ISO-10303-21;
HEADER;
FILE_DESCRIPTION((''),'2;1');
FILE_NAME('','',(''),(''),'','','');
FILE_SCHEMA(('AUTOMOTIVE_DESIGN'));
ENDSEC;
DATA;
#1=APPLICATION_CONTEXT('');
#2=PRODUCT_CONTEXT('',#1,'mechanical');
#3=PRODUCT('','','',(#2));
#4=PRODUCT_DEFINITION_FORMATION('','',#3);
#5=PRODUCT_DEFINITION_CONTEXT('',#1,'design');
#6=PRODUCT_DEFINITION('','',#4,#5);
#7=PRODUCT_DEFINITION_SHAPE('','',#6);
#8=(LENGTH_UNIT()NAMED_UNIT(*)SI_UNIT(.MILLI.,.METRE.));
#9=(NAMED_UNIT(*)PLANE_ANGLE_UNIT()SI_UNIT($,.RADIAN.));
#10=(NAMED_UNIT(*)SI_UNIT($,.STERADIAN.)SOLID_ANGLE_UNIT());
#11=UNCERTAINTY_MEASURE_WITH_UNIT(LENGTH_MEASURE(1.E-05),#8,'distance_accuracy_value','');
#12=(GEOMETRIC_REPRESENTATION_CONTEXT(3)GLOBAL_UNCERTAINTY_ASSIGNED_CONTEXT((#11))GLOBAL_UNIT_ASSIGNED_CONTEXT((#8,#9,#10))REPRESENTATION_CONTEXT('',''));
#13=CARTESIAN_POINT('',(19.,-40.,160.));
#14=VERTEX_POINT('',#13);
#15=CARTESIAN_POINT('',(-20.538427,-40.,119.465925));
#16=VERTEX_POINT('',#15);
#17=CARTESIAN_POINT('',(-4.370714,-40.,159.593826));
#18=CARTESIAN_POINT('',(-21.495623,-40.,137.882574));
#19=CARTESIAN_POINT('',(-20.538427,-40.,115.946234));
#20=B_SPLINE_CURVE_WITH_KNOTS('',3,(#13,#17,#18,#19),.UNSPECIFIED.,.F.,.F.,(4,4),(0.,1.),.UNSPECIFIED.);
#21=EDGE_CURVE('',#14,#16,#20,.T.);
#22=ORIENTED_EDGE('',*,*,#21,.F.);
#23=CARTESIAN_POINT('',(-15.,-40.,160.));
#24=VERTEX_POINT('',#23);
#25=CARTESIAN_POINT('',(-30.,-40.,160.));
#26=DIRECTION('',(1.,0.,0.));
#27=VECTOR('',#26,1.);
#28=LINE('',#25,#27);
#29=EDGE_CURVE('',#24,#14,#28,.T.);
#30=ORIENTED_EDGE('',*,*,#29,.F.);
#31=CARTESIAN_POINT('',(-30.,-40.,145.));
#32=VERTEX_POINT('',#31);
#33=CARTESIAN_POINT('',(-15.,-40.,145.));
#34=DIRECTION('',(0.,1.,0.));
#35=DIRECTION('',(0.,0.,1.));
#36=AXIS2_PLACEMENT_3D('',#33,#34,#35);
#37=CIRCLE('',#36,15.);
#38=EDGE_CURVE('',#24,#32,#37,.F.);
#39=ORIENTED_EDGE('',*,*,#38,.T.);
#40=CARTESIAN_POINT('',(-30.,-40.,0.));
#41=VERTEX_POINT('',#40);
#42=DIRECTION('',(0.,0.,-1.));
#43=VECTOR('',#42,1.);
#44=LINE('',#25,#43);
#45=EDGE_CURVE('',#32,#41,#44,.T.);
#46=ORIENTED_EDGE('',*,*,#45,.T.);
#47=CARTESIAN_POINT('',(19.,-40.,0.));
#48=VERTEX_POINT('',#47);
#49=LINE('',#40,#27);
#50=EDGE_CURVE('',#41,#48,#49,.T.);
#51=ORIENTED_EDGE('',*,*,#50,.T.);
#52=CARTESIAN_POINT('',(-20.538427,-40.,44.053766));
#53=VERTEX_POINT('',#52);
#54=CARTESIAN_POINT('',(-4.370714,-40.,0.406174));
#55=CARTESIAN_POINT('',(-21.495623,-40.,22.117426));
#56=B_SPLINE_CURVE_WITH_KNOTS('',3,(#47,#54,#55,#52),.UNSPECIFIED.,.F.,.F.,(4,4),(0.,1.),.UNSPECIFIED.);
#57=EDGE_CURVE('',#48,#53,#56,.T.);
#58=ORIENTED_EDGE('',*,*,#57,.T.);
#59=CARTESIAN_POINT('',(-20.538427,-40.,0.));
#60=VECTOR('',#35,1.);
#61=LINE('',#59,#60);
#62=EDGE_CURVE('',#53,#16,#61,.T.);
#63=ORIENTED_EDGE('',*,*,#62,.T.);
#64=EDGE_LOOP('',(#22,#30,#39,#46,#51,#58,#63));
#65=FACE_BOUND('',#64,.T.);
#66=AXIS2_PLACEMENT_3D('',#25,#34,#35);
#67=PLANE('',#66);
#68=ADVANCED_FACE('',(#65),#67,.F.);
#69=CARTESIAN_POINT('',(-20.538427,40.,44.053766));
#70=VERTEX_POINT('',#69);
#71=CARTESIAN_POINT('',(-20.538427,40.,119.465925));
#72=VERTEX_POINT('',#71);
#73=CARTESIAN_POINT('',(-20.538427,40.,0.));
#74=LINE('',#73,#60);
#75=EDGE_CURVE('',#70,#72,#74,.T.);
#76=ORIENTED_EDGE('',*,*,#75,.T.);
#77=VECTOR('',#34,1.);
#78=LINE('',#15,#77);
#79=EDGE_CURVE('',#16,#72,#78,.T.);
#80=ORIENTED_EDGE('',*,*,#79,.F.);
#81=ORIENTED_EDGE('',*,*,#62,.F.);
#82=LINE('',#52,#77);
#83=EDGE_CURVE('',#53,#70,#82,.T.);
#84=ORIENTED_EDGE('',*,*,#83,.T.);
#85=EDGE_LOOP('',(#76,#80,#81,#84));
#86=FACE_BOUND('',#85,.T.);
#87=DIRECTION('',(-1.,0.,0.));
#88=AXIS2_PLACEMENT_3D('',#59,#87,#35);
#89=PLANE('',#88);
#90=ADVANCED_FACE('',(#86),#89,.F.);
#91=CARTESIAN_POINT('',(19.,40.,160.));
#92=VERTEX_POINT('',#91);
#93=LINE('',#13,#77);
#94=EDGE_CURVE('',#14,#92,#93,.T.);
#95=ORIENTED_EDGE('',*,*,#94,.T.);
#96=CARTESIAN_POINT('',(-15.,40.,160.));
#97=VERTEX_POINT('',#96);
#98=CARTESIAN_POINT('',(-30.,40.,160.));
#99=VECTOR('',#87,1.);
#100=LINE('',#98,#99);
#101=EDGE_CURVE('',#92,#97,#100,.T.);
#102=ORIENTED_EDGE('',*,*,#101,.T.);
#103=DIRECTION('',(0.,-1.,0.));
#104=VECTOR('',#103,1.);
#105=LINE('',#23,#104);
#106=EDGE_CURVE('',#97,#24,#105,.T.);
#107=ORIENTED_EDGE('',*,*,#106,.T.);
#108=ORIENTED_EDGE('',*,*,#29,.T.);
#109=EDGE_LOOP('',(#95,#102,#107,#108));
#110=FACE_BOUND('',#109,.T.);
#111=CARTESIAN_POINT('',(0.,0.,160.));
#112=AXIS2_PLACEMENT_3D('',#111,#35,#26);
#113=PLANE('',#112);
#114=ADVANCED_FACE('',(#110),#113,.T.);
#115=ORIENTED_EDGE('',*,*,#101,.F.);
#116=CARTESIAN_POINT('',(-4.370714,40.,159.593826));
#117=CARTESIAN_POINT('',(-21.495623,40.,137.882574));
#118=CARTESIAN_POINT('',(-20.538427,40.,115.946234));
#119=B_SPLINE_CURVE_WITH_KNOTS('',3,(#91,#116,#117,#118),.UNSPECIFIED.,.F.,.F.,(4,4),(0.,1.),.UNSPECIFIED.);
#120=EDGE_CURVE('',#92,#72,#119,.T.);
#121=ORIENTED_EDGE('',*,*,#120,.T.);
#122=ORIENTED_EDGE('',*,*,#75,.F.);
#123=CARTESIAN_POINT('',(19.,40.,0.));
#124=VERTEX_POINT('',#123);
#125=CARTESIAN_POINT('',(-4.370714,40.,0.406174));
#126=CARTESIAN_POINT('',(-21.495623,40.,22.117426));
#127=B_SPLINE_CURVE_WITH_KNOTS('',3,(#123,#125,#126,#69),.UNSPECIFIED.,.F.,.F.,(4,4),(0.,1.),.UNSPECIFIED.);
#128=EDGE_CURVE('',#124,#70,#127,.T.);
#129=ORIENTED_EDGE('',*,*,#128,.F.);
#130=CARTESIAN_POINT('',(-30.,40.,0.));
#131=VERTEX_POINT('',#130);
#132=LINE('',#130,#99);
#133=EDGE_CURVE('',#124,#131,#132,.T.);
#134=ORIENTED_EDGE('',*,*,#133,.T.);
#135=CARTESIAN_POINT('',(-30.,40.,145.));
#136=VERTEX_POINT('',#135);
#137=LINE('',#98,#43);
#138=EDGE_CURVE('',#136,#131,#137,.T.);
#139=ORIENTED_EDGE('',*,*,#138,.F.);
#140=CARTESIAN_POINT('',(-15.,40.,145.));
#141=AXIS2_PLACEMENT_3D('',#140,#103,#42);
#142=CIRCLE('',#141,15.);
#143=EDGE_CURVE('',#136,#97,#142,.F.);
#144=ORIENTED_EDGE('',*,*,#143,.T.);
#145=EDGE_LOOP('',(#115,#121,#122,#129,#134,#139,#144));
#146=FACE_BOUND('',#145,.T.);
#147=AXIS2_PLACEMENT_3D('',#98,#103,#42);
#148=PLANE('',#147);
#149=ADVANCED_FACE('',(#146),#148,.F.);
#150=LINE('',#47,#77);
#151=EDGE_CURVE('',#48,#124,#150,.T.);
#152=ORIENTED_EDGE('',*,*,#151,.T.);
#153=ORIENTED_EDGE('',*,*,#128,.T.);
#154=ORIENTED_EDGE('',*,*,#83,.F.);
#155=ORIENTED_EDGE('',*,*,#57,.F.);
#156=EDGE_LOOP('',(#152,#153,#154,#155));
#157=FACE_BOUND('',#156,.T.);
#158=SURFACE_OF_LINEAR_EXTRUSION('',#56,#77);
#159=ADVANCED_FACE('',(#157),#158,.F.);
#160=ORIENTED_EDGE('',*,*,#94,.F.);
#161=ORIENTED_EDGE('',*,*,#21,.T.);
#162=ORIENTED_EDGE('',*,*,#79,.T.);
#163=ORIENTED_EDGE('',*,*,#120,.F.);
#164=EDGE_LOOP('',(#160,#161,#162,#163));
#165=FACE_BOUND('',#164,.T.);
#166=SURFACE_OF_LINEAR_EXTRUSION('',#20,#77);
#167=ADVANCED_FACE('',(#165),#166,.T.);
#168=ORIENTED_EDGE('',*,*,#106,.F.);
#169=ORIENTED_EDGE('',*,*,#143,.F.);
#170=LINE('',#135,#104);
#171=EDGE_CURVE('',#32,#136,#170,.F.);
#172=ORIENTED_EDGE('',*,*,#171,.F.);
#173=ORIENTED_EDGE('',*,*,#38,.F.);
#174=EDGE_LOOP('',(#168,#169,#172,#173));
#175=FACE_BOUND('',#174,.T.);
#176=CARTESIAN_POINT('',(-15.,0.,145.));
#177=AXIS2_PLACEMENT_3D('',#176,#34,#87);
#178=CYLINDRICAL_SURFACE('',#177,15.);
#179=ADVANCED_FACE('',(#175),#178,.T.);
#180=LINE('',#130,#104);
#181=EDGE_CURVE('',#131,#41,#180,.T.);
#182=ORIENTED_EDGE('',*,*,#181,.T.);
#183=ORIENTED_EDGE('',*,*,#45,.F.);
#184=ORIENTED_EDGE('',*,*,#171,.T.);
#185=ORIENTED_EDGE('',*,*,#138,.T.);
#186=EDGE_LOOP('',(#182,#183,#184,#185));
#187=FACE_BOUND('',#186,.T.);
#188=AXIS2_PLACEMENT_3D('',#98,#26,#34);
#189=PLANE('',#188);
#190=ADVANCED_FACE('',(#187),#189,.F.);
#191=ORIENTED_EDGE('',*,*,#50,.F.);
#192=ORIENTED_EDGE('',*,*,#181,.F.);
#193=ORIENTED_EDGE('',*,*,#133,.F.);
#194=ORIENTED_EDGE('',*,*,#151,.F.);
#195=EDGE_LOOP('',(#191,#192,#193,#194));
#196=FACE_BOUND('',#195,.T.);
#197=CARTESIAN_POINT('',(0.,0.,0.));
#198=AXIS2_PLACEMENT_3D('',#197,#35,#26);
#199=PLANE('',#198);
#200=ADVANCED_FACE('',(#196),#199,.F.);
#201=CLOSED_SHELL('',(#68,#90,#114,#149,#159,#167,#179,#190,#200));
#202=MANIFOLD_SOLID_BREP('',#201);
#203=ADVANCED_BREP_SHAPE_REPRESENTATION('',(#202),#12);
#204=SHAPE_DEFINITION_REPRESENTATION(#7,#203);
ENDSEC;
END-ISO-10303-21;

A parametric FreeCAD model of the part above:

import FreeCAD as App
import Part
import Sketcher

V = App.Vector
Q = App.Units.Quantity


def edges_at(feature, points):
    """Names of the edges that pass closest to the given points."""
    edges = feature.Shape.Edges
    near = lambda p: min(range(len(edges)), key=lambda i: edges[i].distToShape(Part.Vertex(*p))[0])
    return sorted({f"Edge{near(p) + 1}" for p in points})

doc = App.newDocument("Part")
body = doc.addObject("PartDesign::Body", "Body")

sketch1 = body.newObject("Sketcher::SketchObject", "Sketch")
sketch1.AttachmentSupport = (doc.getObject("XY_Plane"), [""])
sketch1.MapMode = "FlatFace"
sketch1.addGeometry(Part.LineSegment(V(-30, 40, 0), V(-30, -40, 0)), False)
sketch1.addGeometry(Part.LineSegment(V(-30, -40, 0), V(30, -40, 0)), False)
sketch1.addGeometry(Part.LineSegment(V(30, -40, 0), V(30, 40, 0)), False)
sketch1.addGeometry(Part.LineSegment(V(30, 40, 0), V(-30, 40, 0)), False)
sketch1.addConstraint(Sketcher.Constraint("Coincident", 0, 2, 1, 1))
sketch1.addConstraint(Sketcher.Constraint("Coincident", 1, 2, 2, 1))
sketch1.addConstraint(Sketcher.Constraint("Coincident", 2, 2, 3, 1))
sketch1.addConstraint(Sketcher.Constraint("Coincident", 3, 2, 0, 1))
sketch1.addConstraint(Sketcher.Constraint("Vertical", 0))
sketch1.addConstraint(Sketcher.Constraint("Horizontal", 1))
sketch1.addConstraint(Sketcher.Constraint("Vertical", 2))
sketch1.addConstraint(Sketcher.Constraint("Horizontal", 3))
sketch1.addConstraint(Sketcher.Constraint("Symmetric", 0, 2, 2, 2, -1, 1))
sketch1.addConstraint(Sketcher.Constraint("DistanceX", 1, 1, 1, 2, Q("60 mm")))
sketch1.addConstraint(Sketcher.Constraint("DistanceY", 0, 2, 0, 1, Q("80 mm")))
pad1 = body.newObject("PartDesign::Pad", "Pad")
pad1.Profile = sketch1
pad1.Length = 160

sketch2 = body.newObject("Sketcher::SketchObject", "Sketch001")
sketch2.AttachmentSupport = (doc.getObject("XZ_Plane"), [""])
sketch2.MapMode = "FlatFace"
sketch2.AttachmentOffset = App.Placement(V(0, 0, -40), App.Rotation())
sketch2.addGeometry(Part.LineSegment(V(-20.538427, 44.053766, 0), V(-20.538427, 119.465925, 0)), False)
sketch2.addGeometry(Part.BSplineCurve([V(19, 160, 0), V(-3.11893, 159.615581, 0), V(-19.643213, 140.147251, 0), V(-20.538427, 119.465925, 0)], [4, 4], [0, 0.946437929], False, 3, [1, 1, 1, 1], False), False)
sketch2.addGeometry(Part.LineSegment(V(19, 160, 0), V(30, 160, 0)), False)
sketch2.addGeometry(Part.LineSegment(V(30, 160, 0), V(30, 0, 0)), False)
sketch2.addGeometry(Part.LineSegment(V(30, 0, 0), V(19, 0, 0)), False)
sketch2.addGeometry(Part.BSplineCurve([V(19, 0, 0), V(-4.370714, 0.406174, 0), V(-21.495623, 22.117426, 0), V(-20.538427, 44.053766, 0)], [4, 4], [0, 1], False, 3, [1, 1, 1, 1], False), False)
sketch2.addConstraint(Sketcher.Constraint("Block", 1))
sketch2.addConstraint(Sketcher.Constraint("Block", 5))
sketch2.addConstraint(Sketcher.Constraint("Coincident", 0, 2, 1, 2))
sketch2.addConstraint(Sketcher.Constraint("Coincident", 1, 1, 2, 1))
sketch2.addConstraint(Sketcher.Constraint("Coincident", 2, 2, 3, 1))
sketch2.addConstraint(Sketcher.Constraint("Coincident", 3, 2, 4, 1))
sketch2.addConstraint(Sketcher.Constraint("Coincident", 4, 2, 5, 1))
sketch2.addConstraint(Sketcher.Constraint("Coincident", 5, 2, 0, 1))
sketch2.addConstraint(Sketcher.Constraint("Horizontal", 2))
sketch2.addConstraint(Sketcher.Constraint("Vertical", 3))
sketch2.addConstraint(Sketcher.Constraint("Horizontal", 4))
sketch2.addConstraint(Sketcher.Constraint("DistanceX", 2, 1, 2, 2, Q("11 mm")))
pocket1 = body.newObject("PartDesign::Pocket", "Pocket")
pocket1.Profile = sketch2
pocket1.Type = "ThroughAll"
pocket1.Reversed = True
doc.recompute()

fillet = body.newObject("PartDesign::Fillet", "Fillet")
fillet.Base = (pocket1, edges_at(pocket1, [(-30, 0, 160)]))
fillet.Radius = 15

doc.recompute()
